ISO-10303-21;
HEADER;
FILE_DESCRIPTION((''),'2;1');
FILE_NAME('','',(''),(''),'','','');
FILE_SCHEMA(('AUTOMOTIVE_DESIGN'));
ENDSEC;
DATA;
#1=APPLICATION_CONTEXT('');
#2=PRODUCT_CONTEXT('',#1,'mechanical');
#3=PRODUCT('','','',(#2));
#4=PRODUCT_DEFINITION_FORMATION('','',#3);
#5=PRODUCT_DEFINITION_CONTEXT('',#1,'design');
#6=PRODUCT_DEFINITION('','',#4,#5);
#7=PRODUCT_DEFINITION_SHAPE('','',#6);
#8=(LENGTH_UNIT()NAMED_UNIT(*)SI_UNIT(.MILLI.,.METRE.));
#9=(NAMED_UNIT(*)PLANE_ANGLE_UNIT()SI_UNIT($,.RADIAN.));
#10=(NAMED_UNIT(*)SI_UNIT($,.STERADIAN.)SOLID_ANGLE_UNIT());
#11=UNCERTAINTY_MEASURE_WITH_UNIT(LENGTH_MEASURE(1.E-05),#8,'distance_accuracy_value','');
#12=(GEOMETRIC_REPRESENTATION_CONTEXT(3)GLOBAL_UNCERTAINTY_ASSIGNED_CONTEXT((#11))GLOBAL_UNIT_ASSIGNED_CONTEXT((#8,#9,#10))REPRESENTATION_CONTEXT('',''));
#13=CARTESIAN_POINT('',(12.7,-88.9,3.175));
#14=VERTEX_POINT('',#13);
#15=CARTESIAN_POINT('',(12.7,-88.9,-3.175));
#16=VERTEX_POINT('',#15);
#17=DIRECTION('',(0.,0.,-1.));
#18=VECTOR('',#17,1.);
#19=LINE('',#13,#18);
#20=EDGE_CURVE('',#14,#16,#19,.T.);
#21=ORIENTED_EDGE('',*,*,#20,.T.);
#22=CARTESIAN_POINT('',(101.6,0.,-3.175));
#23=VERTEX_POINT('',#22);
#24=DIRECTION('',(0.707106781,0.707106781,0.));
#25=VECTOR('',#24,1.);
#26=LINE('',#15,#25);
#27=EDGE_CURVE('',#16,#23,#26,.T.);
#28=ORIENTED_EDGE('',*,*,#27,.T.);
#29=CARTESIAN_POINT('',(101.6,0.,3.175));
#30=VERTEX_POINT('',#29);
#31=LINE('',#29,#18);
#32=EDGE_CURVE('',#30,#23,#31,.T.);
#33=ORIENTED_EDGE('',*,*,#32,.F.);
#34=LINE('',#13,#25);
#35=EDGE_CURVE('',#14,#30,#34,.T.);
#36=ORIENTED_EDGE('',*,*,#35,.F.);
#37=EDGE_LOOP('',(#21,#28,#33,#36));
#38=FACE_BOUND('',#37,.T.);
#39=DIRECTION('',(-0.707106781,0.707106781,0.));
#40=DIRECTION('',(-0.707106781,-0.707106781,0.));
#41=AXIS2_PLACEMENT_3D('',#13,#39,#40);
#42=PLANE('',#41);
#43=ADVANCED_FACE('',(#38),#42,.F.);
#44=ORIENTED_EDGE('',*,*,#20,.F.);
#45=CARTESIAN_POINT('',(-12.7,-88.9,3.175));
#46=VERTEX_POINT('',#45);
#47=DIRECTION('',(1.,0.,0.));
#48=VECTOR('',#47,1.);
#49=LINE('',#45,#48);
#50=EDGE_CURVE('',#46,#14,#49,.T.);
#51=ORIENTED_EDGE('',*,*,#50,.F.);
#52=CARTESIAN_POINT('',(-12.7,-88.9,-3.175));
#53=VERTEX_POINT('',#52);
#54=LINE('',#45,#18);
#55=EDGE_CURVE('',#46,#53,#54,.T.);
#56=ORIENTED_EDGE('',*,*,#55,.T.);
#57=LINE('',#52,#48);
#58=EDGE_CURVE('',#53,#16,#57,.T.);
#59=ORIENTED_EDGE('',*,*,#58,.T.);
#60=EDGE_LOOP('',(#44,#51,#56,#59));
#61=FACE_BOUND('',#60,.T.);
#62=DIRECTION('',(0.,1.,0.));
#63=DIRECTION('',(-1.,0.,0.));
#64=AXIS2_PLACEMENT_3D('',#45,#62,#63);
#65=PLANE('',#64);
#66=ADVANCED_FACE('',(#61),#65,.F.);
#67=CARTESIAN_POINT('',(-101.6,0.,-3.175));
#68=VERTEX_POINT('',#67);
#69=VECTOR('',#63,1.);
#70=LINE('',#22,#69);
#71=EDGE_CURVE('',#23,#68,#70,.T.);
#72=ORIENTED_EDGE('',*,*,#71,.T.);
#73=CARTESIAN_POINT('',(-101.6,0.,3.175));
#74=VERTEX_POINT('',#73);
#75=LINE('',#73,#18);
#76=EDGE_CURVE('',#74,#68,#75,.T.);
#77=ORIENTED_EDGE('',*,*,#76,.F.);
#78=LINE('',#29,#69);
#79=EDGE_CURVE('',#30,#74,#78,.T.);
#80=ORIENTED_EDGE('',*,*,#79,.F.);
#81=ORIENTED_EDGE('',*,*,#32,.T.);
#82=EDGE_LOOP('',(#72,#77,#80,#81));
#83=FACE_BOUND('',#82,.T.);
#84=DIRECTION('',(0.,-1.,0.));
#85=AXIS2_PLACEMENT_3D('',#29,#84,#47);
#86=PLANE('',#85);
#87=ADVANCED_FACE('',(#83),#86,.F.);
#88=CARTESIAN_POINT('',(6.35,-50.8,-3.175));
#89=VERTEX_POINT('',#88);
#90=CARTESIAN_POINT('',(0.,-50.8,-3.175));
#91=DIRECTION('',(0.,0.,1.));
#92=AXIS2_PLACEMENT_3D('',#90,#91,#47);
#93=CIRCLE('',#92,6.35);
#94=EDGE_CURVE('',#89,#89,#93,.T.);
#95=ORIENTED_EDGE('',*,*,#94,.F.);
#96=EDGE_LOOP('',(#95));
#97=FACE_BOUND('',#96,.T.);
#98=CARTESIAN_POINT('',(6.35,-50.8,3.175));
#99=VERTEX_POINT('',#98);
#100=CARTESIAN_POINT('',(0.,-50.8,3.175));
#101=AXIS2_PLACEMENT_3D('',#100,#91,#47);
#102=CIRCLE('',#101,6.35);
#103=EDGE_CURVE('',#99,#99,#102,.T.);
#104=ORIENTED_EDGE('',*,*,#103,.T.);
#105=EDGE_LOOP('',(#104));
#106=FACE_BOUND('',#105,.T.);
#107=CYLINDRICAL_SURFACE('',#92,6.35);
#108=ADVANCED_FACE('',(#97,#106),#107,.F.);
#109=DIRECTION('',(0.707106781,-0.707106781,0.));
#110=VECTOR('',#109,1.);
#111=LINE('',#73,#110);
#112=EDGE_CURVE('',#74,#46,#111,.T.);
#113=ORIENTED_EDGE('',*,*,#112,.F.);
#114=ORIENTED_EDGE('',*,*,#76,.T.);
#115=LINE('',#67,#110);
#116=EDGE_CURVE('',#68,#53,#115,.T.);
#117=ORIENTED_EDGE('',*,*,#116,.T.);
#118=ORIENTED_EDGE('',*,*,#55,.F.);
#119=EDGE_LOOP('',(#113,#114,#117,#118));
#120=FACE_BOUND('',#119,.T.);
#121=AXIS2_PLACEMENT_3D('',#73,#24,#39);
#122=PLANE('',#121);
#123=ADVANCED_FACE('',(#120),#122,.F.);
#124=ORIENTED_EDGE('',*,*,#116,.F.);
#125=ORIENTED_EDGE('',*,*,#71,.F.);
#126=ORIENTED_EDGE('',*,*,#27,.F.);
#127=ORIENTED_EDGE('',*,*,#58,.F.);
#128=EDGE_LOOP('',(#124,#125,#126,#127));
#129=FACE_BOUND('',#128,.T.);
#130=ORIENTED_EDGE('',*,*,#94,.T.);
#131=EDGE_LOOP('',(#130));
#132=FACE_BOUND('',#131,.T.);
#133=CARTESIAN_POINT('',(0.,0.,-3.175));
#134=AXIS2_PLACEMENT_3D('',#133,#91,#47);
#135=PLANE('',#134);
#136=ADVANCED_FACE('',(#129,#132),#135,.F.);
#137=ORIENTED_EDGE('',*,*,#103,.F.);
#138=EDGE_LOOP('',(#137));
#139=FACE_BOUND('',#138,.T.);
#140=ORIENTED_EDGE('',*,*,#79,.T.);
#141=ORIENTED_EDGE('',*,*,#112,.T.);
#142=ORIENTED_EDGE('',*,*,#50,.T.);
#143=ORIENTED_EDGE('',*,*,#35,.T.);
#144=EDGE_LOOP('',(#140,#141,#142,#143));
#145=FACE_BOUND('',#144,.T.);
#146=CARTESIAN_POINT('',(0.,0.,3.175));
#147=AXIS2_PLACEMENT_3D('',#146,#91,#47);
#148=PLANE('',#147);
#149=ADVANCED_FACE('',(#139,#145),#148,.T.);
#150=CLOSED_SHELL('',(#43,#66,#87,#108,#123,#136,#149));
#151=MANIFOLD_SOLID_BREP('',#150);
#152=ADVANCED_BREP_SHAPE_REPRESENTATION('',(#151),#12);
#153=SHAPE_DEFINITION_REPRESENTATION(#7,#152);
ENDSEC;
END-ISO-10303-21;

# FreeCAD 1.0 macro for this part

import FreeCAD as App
import Part
import Sketcher
Q = App.Units.Quantity


def add_polygon(sketch, points):
    """Adds a closed chain of lines whose ends are joined by coincident constraints."""
    first, n = sketch.GeometryCount, len(points)
    for a, b in zip(points, points[1:] + points[:1]):
        sketch.addGeometry(Part.LineSegment(App.Vector(*a, 0), App.Vector(*b, 0)), False)
    for i in range(n):
        sketch.addConstraint(Sketcher.Constraint("Coincident", first + i, 2, first + (i + 1) % n, 1))

doc = App.newDocument("Part")
body = doc.addObject("PartDesign::Body", "Body")

# Sketch on XY plane
sketch1 = body.newObject("Sketcher::SketchObject", "Sketch")
sketch1.AttachmentSupport = (doc.getObject("XY_Plane"), [""])
sketch1.MapMode = "FlatFace"
add_polygon(sketch1, [(-101.6, 0), (-12.7, -88.9), (12.7, -88.9), (101.6, 0)])  # lines 0-3
sketch1.addConstraint([
    Sketcher.Constraint("Horizontal", 1),
    Sketcher.Constraint("Horizontal", 3),
    Sketcher.Constraint("Symmetric", 2, 2, 3, 2, -1, 1),
    Sketcher.Constraint("Perpendicular", 0, 2),
    Sketcher.Constraint("Equal", 0, 2),
    Sketcher.Constraint("DistanceX", 1, 1, 1, 2, Q("1 in")),
    Sketcher.Constraint("DistanceX", 3, 2, 3, 1, Q("8 in")),
])
pad1 = body.newObject("PartDesign::Pad", "Pad")
pad1.Profile = sketch1
pad1.Length = Q("0.25 in")
pad1.Midplane = True

# Sketch on XY plane
sketch2 = body.newObject("Sketcher::SketchObject", "Sketch001")
sketch2.AttachmentSupport = (doc.getObject("XY_Plane"), [""])
sketch2.MapMode = "FlatFace"
sketch2.AttachmentOffset = App.Placement(App.Vector(0, 0, 0.125 * 25.4), App.Rotation())
sketch2.addGeometry(Part.Circle(App.Vector(0, -50.8, 0), App.Vector(0, 0, 1), 6.35), False)
sketch2.addConstraint([
    Sketcher.Constraint("PointOnObject", 0, 3, -2),
    Sketcher.Constraint("Diameter", 0, Q("0.5 in")),
    Sketcher.Constraint("DistanceY", 0, 3, -1, 1, Q("2 in")),
])
pocket1 = body.newObject("PartDesign::Pocket", "Pocket")
pocket1.Profile = sketch2
pocket1.Type = "ThroughAll"

doc.recompute()
